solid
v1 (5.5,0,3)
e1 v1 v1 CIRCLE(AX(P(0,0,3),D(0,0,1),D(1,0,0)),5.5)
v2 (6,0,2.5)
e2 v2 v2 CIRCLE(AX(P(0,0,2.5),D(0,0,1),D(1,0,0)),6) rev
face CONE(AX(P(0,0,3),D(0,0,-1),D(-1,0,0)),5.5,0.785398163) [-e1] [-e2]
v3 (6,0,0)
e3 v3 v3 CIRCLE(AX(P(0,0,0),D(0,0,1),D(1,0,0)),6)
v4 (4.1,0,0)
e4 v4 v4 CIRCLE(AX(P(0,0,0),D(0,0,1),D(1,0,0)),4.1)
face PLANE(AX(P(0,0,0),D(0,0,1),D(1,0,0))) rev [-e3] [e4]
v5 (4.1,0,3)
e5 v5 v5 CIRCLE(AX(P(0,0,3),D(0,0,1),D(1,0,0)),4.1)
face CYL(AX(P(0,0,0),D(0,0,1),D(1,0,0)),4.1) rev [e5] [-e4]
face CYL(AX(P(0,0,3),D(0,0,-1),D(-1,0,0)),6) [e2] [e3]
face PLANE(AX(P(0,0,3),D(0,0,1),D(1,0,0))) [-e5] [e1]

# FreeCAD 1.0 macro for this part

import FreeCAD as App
import Part
import Sketcher


def edges_at(feature, points):
    """Names of the edges that pass closest to the given points."""
    edges = feature.Shape.Edges
    near = lambda p: min(range(len(edges)), key=lambda i: edges[i].distToShape(Part.Vertex(*p))[0])
    return sorted({f"Edge{near(p) + 1}" for p in points})

doc = App.newDocument("Part")
body = doc.addObject("PartDesign::Body", "Body")

# Sketch on XY plane
sketch1 = doc.addObject("Sketcher::SketchObject", "Sketch")
body.addObject(sketch1)
sketch1.AttachmentSupport = (doc.XY_Plane, [""])
sketch1.MapMode = "FlatFace"
sketch1.addGeometry(Part.Circle(App.Vector(0, 0, 0), App.Vector(0, 0, 1), 6), False)
sketch1.addConstraint(Sketcher.Constraint("Coincident", 0, 3, -1, 1))
sketch1.addConstraint(Sketcher.Constraint("Diameter", 0, 12.0))
pad1 = doc.addObject("PartDesign::Pad", "Pad")
body.addObject(pad1)
pad1.Profile = sketch1
pad1.Length = 3

# Sketch on XY plane
sketch2 = doc.addObject("Sketcher::SketchObject", "Sketch001")
body.addObject(sketch2)
sketch2.AttachmentSupport = (doc.XY_Plane, [""])
sketch2.MapMode = "FlatFace"
sketch2.AttachmentOffset = App.Placement(App.Vector(0, 0, 3), App.Rotation())
sketch2.addGeometry(Part.Circle(App.Vector(0, 0, 0), App.Vector(0, 0, 1), 4.1), False)
sketch2.addConstraint(Sketcher.Constraint("Coincident", 0, 3, -1, 1))
sketch2.addConstraint(Sketcher.Constraint("Diameter", 0, 8.2))
pocket1 = doc.addObject("PartDesign::Pocket", "Pocket")
body.addObject(pocket1)
pocket1.Profile = sketch2
pocket1.Type = "ThroughAll"
doc.recompute()

chamfer = doc.addObject("PartDesign::Chamfer", "Chamfer")
body.addObject(chamfer)
chamfer.Base = (pocket1, edges_at(pocket1, [(-6, 0, 3)]))
chamfer.Size = 0.5

doc.recompute()
